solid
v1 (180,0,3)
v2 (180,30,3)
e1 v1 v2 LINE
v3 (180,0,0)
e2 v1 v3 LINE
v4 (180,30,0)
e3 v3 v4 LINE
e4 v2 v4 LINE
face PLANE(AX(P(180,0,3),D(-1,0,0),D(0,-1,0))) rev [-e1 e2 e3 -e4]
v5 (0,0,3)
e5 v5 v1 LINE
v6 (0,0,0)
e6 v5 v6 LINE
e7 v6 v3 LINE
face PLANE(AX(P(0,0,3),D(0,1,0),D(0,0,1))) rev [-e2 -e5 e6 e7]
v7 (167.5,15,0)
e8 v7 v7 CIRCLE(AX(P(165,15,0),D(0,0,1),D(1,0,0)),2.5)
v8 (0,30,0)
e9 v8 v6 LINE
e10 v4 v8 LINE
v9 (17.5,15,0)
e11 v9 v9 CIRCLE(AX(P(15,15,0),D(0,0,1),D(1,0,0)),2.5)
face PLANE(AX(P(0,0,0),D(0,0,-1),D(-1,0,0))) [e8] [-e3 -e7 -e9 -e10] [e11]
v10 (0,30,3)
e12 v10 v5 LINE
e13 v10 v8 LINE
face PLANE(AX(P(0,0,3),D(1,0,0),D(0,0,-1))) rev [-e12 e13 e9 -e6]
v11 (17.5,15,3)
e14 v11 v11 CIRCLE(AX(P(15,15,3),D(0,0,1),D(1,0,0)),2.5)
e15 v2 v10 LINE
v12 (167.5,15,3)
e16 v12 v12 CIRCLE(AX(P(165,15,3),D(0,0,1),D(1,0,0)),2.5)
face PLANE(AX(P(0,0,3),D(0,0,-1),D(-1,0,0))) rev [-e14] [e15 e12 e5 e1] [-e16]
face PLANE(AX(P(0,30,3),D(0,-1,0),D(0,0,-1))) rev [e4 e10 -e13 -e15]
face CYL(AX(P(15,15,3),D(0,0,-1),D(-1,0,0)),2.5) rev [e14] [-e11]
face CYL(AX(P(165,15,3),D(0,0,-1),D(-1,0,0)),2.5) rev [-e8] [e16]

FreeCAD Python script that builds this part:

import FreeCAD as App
import Part
import Sketcher


def add_polygon(sketch, points):
    """Adds a closed chain of lines whose ends are joined by coincident constraints."""
    first, n = sketch.GeometryCount, len(points)
    for a, b in zip(points, points[1:] + points[:1]):
        sketch.addGeometry(Part.LineSegment(App.Vector(*a, 0), App.Vector(*b, 0)), False)
    for i in range(n):
        sketch.addConstraint(Sketcher.Constraint("Coincident", first + i, 2, first + (i + 1) % n, 1))

doc = App.newDocument("Part")
params = doc.addObject("Spreadsheet::Sheet", "Params")
for row, (alias, value) in enumerate([
    ("sketch1_diameter", "5 mm"),
    ("sketch1_width", "180 mm"),
    ("sketch1_height", "30 mm"),
    ("pad1_length", "3 mm"),
], start=1):
    params.set(f"A{row}", alias)
    params.set(f"B{row}", "=" + value)
    params.setAlias(f"B{row}", alias)

body = doc.addObject("PartDesign::Body", "Body")

sketch1 = body.newObject("Sketcher::SketchObject", "Sketch")
sketch1.AttachmentSupport = (doc.getObject("XY_Plane"), [""])
sketch1.MapMode = "FlatFace"
add_polygon(sketch1, [(0, 30), (0, 0), (180, 0), (180, 30)])
sketch1.addGeometry(Part.Circle(App.Vector(15, 15, 0), App.Vector(0, 0, 1), 2.5), False)
sketch1.addGeometry(Part.Circle(App.Vector(165, 15, 0), App.Vector(0, 0, 1), 2.5), False)
sketch1.addConstraint([
    Sketcher.Constraint("Vertical", 0),
    Sketcher.Constraint("Horizontal", 1),
    Sketcher.Constraint("Vertical", 2),
    Sketcher.Constraint("Horizontal", 3),
    Sketcher.Constraint("Coincident", 0, 2, -1, 1),
    Sketcher.Constraint("Equal", 4, 5),
    Sketcher.Constraint("Horizontal", 4, 3, 5, 3),
    Sketcher.Constraint("Diameter", 4, 5.0),
    Sketcher.Constraint("DistanceX", 1, 1, 1, 2, 180.0),
    Sketcher.Constraint("DistanceY", 0, 2, 0, 1, 30.0),
    Sketcher.Constraint("DistanceX", -1, 1, 4, 3, 15.0),
    Sketcher.Constraint("DistanceY", -1, 1, 4, 3, 15.0),
    Sketcher.Constraint("DistanceX", -1, 1, 5, 3, 165.0),
])
sketch1.setExpression("Constraints[11]", "Params.sketch1_diameter")
sketch1.setExpression("Constraints[12]", "Params.sketch1_width")
sketch1.setExpression("Constraints[13]", "Params.sketch1_height")
pad1 = body.newObject("PartDesign::Pad", "Pad")
pad1.Profile = sketch1
pad1.setExpression("Length", "Params.pad1_length")

doc.recompute()
